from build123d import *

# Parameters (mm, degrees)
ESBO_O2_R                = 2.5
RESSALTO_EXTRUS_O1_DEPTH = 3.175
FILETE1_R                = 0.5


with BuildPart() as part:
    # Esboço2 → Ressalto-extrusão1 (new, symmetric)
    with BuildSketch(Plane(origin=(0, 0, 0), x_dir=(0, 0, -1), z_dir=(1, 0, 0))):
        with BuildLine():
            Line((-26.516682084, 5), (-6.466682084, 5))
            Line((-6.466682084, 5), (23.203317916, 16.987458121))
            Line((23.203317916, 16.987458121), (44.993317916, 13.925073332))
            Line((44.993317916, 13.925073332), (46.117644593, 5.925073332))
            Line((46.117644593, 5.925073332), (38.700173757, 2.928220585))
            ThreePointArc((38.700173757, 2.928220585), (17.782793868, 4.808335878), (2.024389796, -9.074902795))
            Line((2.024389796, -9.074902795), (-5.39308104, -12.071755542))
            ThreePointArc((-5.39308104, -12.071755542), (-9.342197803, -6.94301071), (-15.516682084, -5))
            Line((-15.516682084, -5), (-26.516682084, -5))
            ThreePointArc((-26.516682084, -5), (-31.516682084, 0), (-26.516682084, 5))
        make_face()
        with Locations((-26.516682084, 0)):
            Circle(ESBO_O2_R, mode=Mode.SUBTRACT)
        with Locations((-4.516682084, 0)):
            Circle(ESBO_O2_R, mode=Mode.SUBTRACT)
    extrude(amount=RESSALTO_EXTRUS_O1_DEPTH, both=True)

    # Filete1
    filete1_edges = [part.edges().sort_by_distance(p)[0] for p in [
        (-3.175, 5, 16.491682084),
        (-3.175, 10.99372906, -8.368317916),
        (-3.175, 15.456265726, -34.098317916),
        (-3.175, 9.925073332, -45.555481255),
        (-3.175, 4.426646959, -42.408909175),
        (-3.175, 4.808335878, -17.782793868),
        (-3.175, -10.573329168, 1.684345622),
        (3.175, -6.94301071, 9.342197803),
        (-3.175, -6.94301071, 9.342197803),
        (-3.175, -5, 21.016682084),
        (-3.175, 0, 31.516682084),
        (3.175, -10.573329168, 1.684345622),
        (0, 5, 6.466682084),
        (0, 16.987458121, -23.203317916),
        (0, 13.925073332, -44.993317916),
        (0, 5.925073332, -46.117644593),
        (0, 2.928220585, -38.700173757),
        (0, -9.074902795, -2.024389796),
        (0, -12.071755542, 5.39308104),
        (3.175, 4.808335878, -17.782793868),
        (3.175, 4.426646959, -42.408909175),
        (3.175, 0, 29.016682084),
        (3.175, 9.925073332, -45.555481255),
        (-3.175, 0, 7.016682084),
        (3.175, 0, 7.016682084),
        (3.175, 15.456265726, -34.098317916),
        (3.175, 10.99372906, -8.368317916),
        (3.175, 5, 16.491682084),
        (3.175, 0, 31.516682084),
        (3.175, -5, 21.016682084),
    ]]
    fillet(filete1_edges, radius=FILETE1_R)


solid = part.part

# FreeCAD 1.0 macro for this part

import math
import FreeCAD as App
import Part
import Sketcher
Q = App.Units.Quantity


def edges_at(feature, points):
    """Names of the edges that pass closest to the given points."""
    edges = feature.Shape.Edges
    near = lambda p: min(range(len(edges)), key=lambda i: edges[i].distToShape(Part.Vertex(*p))[0])
    return sorted({f"Edge{near(p) + 1}" for p in points})

doc = App.newDocument("Part")
params = doc.addObject("Spreadsheet::Sheet", "Params")
for row, (alias, value) in enumerate([
    ("sketch1_diameter", "5 mm"),
    ("sketch1_radius", "5 mm"),
    ("sketch1_height", "11 mm"),
    ("sketch1_length", "8 mm"),
    ("sketch1_height2", "20.05 mm"),
    ("pad1_length", "6.35 mm"),
    ("fillet_radius", "0.5 mm"),
], start=1):
    params.set(f"A{row}", alias)
    params.set(f"B{row}", "=" + value)
    params.setAlias(f"B{row}", alias)

body = doc.addObject("PartDesign::Body", "Body")

# Sketch on YZ plane
sketch1 = doc.addObject("Sketcher::SketchObject", "Sketch")
body.addObject(sketch1)
sketch1.AttachmentSupport = (doc.YZ_Plane, [""])
sketch1.MapMode = "FlatFace"
sketch1.addGeometry([
    Part.LineSegment(App.Vector(5, 6.466682, 0), App.Vector(5, 26.516682, 0)),  # 0
    Part.ArcOfCircle(Part.Circle(App.Vector(0, 26.516682, 0), App.Vector(0, 0, 1), 5), math.radians(0), math.radians(180)),  # 1
    Part.LineSegment(App.Vector(-5, 26.516682, 0), App.Vector(-5, 15.516682, 0)),  # 2
    Part.ArcOfCircle(Part.Circle(App.Vector(-15.782119, 15.516682, 0), App.Vector(0, 0, 1), 10.782119), math.radians(-69.871795), math.radians(0)),  # 3
    Part.LineSegment(App.Vector(-12.071756, 5.393081, 0), App.Vector(-9.074903, -2.02439, 0)),  # 4
    Part.ArcOfCircle(Part.Circle(App.Vector(-20.465417, -26.0543, 0), App.Vector(0, 0, 1), 26.592864), math.radians(-28.394278), math.radians(64.638392)),  # 5
    Part.LineSegment(App.Vector(2.928221, -38.700174, 0), App.Vector(5.925073, -46.117645, 0)),  # 6
    Part.LineSegment(App.Vector(5.925073, -46.117645, 0), App.Vector(13.925073, -44.993318, 0)),  # 7
    Part.LineSegment(App.Vector(13.925073, -44.993318, 0), App.Vector(16.987458, -23.203318, 0)),  # 8
    Part.LineSegment(App.Vector(16.987458, -23.203318, 0), App.Vector(5, 6.466682, 0)),  # 9
    Part.Circle(App.Vector(0, 4.516682, 0), App.Vector(0, 0, 1), 2.5),  # 10
    Part.Circle(App.Vector(0, 26.516682, 0), App.Vector(0, 0, 1), 2.5),  # 11
], False)
sketch1.addConstraint([
    Sketcher.Constraint("Tangent", 0, 2, 1, 1),
    Sketcher.Constraint("Tangent", 1, 2, 2, 1),
    Sketcher.Constraint("Tangent", 2, 2, 3, 2),
    Sketcher.Constraint("Coincident", 3, 1, 4, 1),
    Sketcher.Constraint("Coincident", 4, 2, 5, 2),
    Sketcher.Constraint("Coincident", 5, 1, 6, 1),
    Sketcher.Constraint("Coincident", 6, 2, 7, 1),
    Sketcher.Constraint("Coincident", 7, 2, 8, 1),
    Sketcher.Constraint("Coincident", 8, 2, 9, 1),
    Sketcher.Constraint("Coincident", 9, 2, 0, 1),
    Sketcher.Constraint("Vertical", 0),
    Sketcher.Constraint("Vertical", 2),
    Sketcher.Constraint("Coincident", 11, 3, 1, 3),
    Sketcher.Constraint("Equal", 10, 11),
    Sketcher.Constraint("PointOnObject", 1, 3, -2),
    Sketcher.Constraint("PointOnObject", 10, 3, -2),
    Sketcher.Constraint("Parallel", 4, 6),
    Sketcher.Constraint("Parallel", 6, 9),
    Sketcher.Constraint("Equal", 4, 6),
    Sketcher.Constraint("Diameter", 10, Q("5 mm")),
    Sketcher.Constraint("Radius", 1, Q("5 mm")),
    Sketcher.Constraint("DistanceY", 2, 2, 2, 1, Q("11 mm")),
    Sketcher.Constraint("Angle", 4, Q("-68 deg")),
    Sketcher.Constraint("Angle", 7, Q("8 deg")),
    Sketcher.Constraint("Angle", 8, Q("82 deg")),
    Sketcher.Constraint("Distance", 4, Q("8 mm")),
    Sketcher.Constraint("DistanceY", 10, 3, 3, 3, Q("11 mm")),
    Sketcher.Constraint("DistanceX", 6, 2, 7, 2, Q("8 mm")),
    Sketcher.Constraint("DistanceY", 0, 1, 0, 2, Q("20.05 mm")),
    Sketcher.Constraint("Radius", 3, Q("10.782119 mm")),
    Sketcher.Constraint("DistanceY", 7, 2, 10, 3, Q("49.51 mm")),
    Sketcher.Constraint("DistanceY", 7, 2, 8, 2, Q("21.79 mm")),
    Sketcher.Constraint("Radius", 5, Q("26.592864 mm")),
    Sketcher.Constraint("DistanceY", 5, 3, -1, 1, Q("26.0543 mm")),
    Sketcher.Constraint("DistanceY", 3, 1, 3, 3, Q("10.123601 mm")),
])
sketch1.setExpression("Constraints[19]", "Params.sketch1_diameter")
sketch1.setExpression("Constraints[20]", "Params.sketch1_radius")
sketch1.setExpression("Constraints[21]", "Params.sketch1_height")
sketch1.setExpression("Constraints[25]", "Params.sketch1_length")
sketch1.setExpression("Constraints[28]", "Params.sketch1_height2")
pad1 = doc.addObject("PartDesign::Pad", "Pad")
body.addObject(pad1)
pad1.Profile = sketch1
pad1.setExpression("Length", "Params.pad1_length")
pad1.Midplane = True
doc.recompute()

fillet = doc.addObject("PartDesign::Fillet", "Fillet")
body.addObject(fillet)
fillet.Base = (pad1, edges_at(pad1, [
    (-3.175, 5, 16.492),
    (-3.175, 10.994, -8.368),
    (-3.175, 15.456, -34.098),
    (-3.175, 9.925, -45.555),
    (-3.175, 4.427, -42.409),
    (-3.175, 4.808, -17.783),
    (-3.175, -10.573, 1.684),
    (3.175, -6.943, 9.342),
    (-3.175, -6.943, 9.342),
    (-3.175, -5, 21.017),
    (-3.175, 0, 31.517),
    (3.175, -10.573, 1.684),
    (0, 5, 6.467),
    (0, 16.987, -23.203),
    (0, 13.925, -44.993),
    (0, 5.925, -46.118),
    (0, 2.928, -38.7),
    (0, -9.075, -2.024),
    (0, -12.072, 5.393),
    (3.175, 4.808, -17.783),
    (3.175, 4.427, -42.409),
    (3.175, 0, 29.017),
    (3.175, 9.925, -45.555),
    (-3.175, 0, 7.017),
    (3.175, 0, 7.017),
    (3.175, 15.456, -34.098),
    (3.175, 10.994, -8.368),
    (3.175, 5, 16.492),
    (3.175, 0, 31.517),
    (3.175, -5, 21.017),
]))
fillet.setExpression("Radius", "Params.fillet_radius")

doc.recompute()
